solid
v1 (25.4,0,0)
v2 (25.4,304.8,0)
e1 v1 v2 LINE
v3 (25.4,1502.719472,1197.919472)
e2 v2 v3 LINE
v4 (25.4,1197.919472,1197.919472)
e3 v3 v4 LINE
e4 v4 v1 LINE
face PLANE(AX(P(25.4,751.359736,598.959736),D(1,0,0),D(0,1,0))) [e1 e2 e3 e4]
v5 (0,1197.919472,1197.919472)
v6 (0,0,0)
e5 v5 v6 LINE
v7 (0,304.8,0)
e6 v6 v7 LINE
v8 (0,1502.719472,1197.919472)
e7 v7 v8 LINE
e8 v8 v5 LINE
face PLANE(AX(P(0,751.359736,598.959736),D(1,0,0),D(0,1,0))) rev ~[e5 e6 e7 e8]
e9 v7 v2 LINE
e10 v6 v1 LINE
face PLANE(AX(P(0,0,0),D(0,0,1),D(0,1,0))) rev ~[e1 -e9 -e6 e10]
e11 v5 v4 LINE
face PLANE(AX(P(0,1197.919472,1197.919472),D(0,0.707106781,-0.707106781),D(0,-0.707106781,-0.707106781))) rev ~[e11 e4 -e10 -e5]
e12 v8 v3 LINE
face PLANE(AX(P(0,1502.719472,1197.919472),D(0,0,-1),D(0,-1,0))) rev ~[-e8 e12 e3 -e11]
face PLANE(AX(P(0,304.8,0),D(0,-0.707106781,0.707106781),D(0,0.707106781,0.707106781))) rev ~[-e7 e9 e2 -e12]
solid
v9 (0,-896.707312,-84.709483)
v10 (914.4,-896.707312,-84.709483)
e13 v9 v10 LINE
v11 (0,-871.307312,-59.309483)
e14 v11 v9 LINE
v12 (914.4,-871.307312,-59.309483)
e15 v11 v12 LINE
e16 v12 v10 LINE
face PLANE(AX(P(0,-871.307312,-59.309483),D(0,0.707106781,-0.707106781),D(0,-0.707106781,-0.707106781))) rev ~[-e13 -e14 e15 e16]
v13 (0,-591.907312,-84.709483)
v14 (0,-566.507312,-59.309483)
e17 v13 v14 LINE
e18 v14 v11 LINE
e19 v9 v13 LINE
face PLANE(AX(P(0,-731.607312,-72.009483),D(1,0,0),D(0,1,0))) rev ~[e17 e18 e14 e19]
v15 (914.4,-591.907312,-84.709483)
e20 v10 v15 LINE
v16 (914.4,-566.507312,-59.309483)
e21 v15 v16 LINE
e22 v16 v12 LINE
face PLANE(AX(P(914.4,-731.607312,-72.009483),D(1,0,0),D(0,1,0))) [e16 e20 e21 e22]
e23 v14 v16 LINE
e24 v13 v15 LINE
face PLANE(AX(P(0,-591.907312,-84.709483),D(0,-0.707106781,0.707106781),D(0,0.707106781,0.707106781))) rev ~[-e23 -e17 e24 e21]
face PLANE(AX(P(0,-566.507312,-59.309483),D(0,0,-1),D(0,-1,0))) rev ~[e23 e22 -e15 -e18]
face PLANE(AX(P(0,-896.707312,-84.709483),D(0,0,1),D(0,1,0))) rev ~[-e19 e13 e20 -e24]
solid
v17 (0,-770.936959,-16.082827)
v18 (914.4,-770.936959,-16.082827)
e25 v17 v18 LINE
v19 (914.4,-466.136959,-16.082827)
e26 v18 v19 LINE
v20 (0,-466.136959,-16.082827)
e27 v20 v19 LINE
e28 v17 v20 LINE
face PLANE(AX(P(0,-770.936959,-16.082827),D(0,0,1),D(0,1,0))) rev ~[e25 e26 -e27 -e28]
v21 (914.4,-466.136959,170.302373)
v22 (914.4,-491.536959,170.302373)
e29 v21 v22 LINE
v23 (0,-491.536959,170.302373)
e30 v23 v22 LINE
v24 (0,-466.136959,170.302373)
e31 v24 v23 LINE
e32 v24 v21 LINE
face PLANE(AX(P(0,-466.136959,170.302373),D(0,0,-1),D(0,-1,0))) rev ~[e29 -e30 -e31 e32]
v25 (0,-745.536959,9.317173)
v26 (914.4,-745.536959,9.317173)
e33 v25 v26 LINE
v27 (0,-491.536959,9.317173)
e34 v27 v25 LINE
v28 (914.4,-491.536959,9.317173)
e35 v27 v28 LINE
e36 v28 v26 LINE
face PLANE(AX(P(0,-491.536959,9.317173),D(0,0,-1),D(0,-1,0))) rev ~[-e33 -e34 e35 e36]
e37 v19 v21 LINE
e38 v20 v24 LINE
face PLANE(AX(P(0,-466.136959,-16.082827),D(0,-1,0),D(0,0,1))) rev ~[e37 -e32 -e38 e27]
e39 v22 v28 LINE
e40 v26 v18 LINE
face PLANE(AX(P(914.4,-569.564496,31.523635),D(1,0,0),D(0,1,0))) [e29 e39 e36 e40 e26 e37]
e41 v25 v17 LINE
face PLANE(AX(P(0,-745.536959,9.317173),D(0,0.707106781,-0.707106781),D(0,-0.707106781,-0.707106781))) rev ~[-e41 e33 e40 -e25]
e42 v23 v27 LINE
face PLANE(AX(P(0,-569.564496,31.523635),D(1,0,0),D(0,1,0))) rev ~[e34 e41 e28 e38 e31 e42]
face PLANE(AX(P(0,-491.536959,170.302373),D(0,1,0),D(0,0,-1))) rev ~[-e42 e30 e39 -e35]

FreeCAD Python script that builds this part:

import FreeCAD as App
import Part
import Sketcher
Q = App.Units.Quantity

doc = App.newDocument("Part")
body = doc.addObject("PartDesign::Body", "Body")

# Sketch on YZ plane
sketch1 = doc.addObject("Sketcher::SketchObject", "Sketch")
body.addObject(sketch1)
sketch1.AttachmentSupport = (doc.YZ_Plane, [""])
sketch1.MapMode = "FlatFace"
sketch1.addGeometry([
    Part.LineSegment(App.Vector(0, 0, 0), App.Vector(305, 0, 0)),
    Part.LineSegment(App.Vector(305, 0, 0), App.Vector(1503, 1198, 0)),
    Part.LineSegment(App.Vector(1503, 1198, 0), App.Vector(1198, 1198, 0)),
    Part.LineSegment(App.Vector(1198, 1198, 0), App.Vector(0, 0, 0)),
], False)
sketch1.addConstraint([
    Sketcher.Constraint("Coincident", 0, 2, 1, 1),
    Sketcher.Constraint("Coincident", 1, 2, 2, 1),
    Sketcher.Constraint("Coincident", 2, 2, 3, 1),
    Sketcher.Constraint("Coincident", 3, 2, 0, 1),
    Sketcher.Constraint("Horizontal", 0),
    Sketcher.Constraint("Horizontal", 2),
    Sketcher.Constraint("Coincident", 3, 2, -1, 1),
    Sketcher.Constraint("Parallel", 1, 3),
    Sketcher.Constraint("DistanceX", 0, 1, 0, 2, Q("12 in")),
    Sketcher.Constraint("Angle", 1, Q("45 deg")),
    Sketcher.Constraint("Distance", 1, Q("66.6974002 in")),
])
pad1 = doc.addObject("PartDesign::Pad", "Pad")
body.addObject(pad1)
pad1.Profile = sketch1
pad1.Length = Q("1 in")
body2 = doc.addObject("PartDesign::Body", "Body001")

# Sketch on YZ plane
sketch2 = doc.addObject("Sketcher::SketchObject", "Sketch001")
body2.addObject(sketch2)
sketch2.AttachmentSupport = (doc.getObject("YZ_Plane001"), [""])
sketch2.MapMode = "FlatFace"
sketch2.addGeometry([
    Part.LineSegment(App.Vector(-871, -59, 0), App.Vector(-897, -85, 0)),
    Part.LineSegment(App.Vector(-897, -85, 0), App.Vector(-592, -85, 0)),
    Part.LineSegment(App.Vector(-592, -85, 0), App.Vector(-567, -59, 0)),
    Part.LineSegment(App.Vector(-567, -59, 0), App.Vector(-871, -59, 0)),
], False)
sketch2.addConstraint([
    Sketcher.Constraint("Coincident", 0, 2, 1, 1),
    Sketcher.Constraint("Coincident", 1, 2, 2, 1),
    Sketcher.Constraint("Coincident", 2, 2, 3, 1),
    Sketcher.Constraint("Coincident", 3, 2, 0, 1),
    Sketcher.Constraint("Horizontal", 1),
    Sketcher.Constraint("Horizontal", 3),
    Sketcher.Constraint("Parallel", 0, 2),
    Sketcher.Constraint("DistanceX", 1, 1, 1, 2, Q("12 in")),
    Sketcher.Constraint("Angle", 0, Q("-135 deg")),
    Sketcher.Constraint("DistanceX", 1, 2, 2, 2, Q("1 in")),
    Sketcher.Constraint("DistanceX", 0, 2, -1, 1, 896.707312),
    Sketcher.Constraint("DistanceY", 0, 2, -1, 1, 84.709483),
])
pad2 = doc.addObject("PartDesign::Pad", "Pad001")
body2.addObject(pad2)
pad2.Profile = sketch2
pad2.Length = Q("36 in")
body3 = doc.addObject("PartDesign::Body", "Body002")

# Sketch on YZ plane
sketch3 = doc.addObject("Sketcher::SketchObject", "Sketch002")
body3.addObject(sketch3)
sketch3.AttachmentSupport = (doc.getObject("YZ_Plane002"), [""])
sketch3.MapMode = "FlatFace"
sketch3.addGeometry([
    Part.LineSegment(App.Vector(-746, 9, 0), App.Vector(-771, -16, 0)),  # 0
    Part.LineSegment(App.Vector(-771, -16, 0), App.Vector(-466, -16, 0)),  # 1
    Part.LineSegment(App.Vector(-466, -16, 0), App.Vector(-466, 170, 0)),  # 2
    Part.LineSegment(App.Vector(-466, 170, 0), App.Vector(-492, 170, 0)),  # 3
    Part.LineSegment(App.Vector(-492, 170, 0), App.Vector(-492, 9, 0)),  # 4
    Part.LineSegment(App.Vector(-492, 9, 0), App.Vector(-746, 9, 0)),  # 5
], False)
sketch3.addConstraint([
    Sketcher.Constraint("Coincident", 0, 2, 1, 1),
    Sketcher.Constraint("Coincident", 1, 2, 2, 1),
    Sketcher.Constraint("Coincident", 2, 2, 3, 1),
    Sketcher.Constraint("Coincident", 3, 2, 4, 1),
    Sketcher.Constraint("Coincident", 4, 2, 5, 1),
    Sketcher.Constraint("Coincident", 5, 2, 0, 1),
    Sketcher.Constraint("Horizontal", 1),
    Sketcher.Constraint("Vertical", 2),
    Sketcher.Constraint("Horizontal", 3),
    Sketcher.Constraint("Vertical", 4),
    Sketcher.Constraint("Horizontal", 5),
    Sketcher.Constraint("DistanceX", 1, 1, 1, 2, Q("12 in")),
    Sketcher.Constraint("DistanceX", 3, 2, 3, 1, Q("1 in")),
    Sketcher.Constraint("DistanceX", 5, 2, 5, 1, Q("10 in")),
    Sketcher.Constraint("Angle", 0, Q("-135 deg")),
    Sketcher.Constraint("DistanceY", 2, 1, 2, 2, Q("7.338 in")),
    Sketcher.Constraint("DistanceX", 0, 2, -1, 1, 770.936959),
    Sketcher.Constraint("DistanceY", 0, 2, -1, 1, 16.082827),
])
pad3 = doc.addObject("PartDesign::Pad", "Pad002")
body3.addObject(pad3)
pad3.Profile = sketch3
pad3.Length = Q("36 in")

doc.recompute()
